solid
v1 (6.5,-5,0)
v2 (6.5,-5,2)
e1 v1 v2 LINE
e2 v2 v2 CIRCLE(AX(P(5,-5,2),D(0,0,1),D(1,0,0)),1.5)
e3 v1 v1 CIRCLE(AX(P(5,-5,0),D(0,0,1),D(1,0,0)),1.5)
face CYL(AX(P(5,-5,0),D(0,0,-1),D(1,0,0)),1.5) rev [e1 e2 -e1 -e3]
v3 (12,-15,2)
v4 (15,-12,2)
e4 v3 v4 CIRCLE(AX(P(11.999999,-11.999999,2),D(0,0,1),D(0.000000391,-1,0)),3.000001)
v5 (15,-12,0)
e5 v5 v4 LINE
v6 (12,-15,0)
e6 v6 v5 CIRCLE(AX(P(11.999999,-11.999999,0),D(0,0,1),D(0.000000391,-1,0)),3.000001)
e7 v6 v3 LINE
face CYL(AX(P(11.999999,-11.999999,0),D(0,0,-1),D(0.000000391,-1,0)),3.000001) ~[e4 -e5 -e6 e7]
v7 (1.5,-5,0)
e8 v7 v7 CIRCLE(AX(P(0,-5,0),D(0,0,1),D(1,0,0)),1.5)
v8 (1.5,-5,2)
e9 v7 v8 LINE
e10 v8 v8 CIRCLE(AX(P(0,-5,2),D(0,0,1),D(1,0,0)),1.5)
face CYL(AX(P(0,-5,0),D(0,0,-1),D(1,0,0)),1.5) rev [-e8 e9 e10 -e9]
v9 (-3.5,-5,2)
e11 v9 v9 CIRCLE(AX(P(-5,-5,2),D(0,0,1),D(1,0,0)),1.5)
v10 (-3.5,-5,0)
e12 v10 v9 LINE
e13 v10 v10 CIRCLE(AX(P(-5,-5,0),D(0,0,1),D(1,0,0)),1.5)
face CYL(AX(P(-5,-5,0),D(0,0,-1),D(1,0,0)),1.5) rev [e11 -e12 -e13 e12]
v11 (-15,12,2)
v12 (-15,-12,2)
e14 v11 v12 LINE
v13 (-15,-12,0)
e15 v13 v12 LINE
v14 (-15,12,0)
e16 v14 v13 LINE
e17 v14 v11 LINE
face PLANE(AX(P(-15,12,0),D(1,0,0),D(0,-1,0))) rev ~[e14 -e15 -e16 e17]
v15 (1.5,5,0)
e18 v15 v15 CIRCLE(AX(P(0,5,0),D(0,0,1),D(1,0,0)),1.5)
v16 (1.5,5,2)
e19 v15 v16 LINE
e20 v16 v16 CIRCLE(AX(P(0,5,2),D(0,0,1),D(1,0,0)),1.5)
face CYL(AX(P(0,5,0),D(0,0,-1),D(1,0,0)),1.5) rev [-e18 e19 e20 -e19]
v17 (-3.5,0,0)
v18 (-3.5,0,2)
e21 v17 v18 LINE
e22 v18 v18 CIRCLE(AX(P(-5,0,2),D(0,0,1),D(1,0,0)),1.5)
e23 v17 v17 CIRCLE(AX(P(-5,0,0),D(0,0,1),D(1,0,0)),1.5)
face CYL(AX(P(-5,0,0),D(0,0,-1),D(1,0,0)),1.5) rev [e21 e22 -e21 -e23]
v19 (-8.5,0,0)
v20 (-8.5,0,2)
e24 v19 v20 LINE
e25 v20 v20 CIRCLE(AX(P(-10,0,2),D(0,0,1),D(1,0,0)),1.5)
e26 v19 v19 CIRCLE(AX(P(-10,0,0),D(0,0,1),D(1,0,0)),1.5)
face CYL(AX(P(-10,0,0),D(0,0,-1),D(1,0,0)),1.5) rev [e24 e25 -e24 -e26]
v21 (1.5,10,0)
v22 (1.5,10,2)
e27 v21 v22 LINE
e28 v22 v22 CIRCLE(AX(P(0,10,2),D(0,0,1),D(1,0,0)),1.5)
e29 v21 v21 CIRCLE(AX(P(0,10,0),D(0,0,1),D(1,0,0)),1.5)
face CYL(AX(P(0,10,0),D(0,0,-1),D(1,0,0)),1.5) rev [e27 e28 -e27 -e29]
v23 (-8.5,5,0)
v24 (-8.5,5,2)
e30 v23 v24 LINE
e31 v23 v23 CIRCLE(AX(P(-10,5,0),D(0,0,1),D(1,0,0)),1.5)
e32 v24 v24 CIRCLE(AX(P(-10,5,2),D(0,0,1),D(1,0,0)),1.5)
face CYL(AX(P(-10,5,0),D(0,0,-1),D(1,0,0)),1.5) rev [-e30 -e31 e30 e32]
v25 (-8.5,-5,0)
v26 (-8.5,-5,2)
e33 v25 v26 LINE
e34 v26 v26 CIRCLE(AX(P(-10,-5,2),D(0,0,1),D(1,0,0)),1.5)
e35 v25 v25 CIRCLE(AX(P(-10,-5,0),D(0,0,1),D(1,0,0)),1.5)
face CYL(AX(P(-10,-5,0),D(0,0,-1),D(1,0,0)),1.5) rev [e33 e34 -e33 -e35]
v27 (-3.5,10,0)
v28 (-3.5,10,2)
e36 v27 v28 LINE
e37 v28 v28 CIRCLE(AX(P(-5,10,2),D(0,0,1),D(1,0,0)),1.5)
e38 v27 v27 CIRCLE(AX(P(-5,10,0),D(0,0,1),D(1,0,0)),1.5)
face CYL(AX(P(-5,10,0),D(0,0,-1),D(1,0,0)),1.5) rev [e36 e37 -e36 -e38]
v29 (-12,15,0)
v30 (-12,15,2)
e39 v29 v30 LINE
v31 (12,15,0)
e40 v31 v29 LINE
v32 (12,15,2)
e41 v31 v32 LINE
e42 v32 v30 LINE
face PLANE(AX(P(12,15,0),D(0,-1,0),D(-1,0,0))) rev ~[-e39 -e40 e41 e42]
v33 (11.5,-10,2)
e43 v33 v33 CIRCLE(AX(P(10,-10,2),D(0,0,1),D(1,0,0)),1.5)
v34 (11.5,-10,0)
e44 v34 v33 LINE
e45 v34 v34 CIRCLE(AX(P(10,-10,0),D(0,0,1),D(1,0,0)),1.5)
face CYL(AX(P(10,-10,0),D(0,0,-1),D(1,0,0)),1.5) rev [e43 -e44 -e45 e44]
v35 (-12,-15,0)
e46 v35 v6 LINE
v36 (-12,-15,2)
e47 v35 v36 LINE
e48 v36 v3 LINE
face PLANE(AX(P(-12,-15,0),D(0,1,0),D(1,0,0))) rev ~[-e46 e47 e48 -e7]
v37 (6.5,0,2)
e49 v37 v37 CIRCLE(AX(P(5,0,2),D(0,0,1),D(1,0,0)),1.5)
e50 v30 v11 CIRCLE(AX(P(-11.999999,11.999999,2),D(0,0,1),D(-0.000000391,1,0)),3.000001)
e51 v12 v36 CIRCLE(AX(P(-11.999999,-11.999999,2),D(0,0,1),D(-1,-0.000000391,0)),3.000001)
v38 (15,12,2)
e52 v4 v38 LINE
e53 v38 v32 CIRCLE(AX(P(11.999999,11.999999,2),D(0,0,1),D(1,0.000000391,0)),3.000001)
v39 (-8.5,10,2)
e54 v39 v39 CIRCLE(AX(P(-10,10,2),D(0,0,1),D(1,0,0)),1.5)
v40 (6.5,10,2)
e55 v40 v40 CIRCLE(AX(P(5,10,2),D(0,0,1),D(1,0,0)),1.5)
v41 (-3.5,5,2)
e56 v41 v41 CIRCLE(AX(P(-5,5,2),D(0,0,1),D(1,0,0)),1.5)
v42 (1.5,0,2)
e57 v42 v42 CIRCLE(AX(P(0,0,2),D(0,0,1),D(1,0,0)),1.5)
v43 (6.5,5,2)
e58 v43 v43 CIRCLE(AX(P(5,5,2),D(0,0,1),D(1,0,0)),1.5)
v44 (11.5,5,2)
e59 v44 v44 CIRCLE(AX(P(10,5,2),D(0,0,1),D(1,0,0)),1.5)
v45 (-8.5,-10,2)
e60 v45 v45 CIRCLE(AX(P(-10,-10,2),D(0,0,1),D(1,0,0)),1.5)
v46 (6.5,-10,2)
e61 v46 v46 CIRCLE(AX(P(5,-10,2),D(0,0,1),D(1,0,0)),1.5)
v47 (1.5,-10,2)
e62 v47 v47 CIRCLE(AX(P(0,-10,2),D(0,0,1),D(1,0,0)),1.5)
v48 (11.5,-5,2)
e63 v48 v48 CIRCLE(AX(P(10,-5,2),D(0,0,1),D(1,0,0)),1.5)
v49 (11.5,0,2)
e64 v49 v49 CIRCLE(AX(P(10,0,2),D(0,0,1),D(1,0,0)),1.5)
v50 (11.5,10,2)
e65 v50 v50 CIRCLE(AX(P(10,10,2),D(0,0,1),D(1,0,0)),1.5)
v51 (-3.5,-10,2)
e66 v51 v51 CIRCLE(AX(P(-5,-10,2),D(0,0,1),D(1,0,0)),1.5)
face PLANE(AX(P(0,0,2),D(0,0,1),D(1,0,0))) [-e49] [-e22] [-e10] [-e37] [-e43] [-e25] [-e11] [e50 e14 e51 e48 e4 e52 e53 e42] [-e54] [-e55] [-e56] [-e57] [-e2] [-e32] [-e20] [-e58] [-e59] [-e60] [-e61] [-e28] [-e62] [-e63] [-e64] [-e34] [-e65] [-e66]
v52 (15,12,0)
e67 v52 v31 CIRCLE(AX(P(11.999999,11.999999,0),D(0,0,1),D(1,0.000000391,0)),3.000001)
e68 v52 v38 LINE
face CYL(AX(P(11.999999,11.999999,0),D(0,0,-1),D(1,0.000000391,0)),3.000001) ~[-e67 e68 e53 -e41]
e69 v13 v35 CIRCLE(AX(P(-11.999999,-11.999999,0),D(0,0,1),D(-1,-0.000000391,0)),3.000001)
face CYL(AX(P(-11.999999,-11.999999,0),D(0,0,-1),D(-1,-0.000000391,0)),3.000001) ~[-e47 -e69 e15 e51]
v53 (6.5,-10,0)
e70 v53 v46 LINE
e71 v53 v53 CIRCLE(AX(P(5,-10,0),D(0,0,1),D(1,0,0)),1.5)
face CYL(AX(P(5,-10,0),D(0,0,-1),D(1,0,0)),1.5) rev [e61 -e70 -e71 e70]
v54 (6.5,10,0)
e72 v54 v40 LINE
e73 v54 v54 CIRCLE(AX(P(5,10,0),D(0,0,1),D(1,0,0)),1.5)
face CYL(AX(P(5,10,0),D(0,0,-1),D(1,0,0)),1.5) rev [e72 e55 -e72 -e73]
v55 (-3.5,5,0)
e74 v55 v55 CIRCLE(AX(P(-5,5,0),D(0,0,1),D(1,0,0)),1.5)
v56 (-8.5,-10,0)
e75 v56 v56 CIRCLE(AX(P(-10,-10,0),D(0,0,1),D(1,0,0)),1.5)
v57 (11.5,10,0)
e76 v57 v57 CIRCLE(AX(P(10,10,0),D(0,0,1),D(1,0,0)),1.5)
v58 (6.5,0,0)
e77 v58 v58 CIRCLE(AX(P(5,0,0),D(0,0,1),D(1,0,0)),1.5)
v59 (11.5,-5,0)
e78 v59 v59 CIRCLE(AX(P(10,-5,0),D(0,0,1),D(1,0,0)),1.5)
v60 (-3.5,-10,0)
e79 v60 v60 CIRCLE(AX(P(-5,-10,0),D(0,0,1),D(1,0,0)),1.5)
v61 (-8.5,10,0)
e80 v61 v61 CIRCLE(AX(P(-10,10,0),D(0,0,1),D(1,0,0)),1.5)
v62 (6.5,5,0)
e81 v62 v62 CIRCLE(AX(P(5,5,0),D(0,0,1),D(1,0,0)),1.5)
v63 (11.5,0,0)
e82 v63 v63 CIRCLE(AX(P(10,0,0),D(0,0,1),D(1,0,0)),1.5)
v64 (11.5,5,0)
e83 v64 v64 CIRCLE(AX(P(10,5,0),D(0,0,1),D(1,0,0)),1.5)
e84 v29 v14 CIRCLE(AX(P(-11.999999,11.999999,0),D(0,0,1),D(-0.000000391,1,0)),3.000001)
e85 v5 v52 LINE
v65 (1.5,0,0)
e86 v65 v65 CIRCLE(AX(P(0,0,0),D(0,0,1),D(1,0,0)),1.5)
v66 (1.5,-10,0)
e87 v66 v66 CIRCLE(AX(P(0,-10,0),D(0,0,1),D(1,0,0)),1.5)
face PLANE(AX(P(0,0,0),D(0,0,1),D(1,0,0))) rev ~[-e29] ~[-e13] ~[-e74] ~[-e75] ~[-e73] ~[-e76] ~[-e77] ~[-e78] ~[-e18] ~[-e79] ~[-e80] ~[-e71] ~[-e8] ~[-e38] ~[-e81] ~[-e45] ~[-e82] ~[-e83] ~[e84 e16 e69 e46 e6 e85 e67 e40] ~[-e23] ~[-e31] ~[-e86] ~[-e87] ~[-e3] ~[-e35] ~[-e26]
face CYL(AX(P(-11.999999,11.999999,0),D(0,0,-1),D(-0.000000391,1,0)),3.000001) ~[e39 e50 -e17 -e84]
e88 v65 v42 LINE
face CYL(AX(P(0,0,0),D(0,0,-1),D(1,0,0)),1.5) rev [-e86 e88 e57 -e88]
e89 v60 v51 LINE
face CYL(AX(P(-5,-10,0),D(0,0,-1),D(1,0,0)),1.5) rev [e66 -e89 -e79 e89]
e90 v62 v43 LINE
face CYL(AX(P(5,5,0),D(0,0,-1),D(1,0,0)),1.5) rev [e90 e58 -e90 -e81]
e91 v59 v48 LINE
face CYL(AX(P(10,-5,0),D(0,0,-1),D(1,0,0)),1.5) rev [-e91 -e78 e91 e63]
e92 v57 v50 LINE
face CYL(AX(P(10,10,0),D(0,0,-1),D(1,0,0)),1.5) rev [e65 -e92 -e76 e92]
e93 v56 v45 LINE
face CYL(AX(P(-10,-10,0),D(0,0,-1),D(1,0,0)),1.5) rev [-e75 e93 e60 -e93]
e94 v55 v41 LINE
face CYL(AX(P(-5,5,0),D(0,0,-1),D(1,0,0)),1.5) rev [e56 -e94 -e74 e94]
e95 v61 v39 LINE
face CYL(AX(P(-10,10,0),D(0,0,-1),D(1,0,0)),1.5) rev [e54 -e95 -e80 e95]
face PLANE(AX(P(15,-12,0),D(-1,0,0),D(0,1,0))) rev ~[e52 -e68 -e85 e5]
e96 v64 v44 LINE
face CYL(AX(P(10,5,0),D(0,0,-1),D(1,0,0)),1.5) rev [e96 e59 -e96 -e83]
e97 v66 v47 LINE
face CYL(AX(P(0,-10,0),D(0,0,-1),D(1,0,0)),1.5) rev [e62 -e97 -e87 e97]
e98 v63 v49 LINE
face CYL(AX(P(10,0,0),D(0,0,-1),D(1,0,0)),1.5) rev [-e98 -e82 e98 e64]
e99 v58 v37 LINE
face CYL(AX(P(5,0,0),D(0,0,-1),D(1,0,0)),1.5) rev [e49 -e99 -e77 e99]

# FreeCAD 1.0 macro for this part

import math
import FreeCAD as App
import Part
import Sketcher

V = App.Vector
Q = App.Units.Quantity

doc = App.newDocument("Part")
params = doc.addObject("Spreadsheet::Sheet", "Params")
for row, (alias, value) in enumerate([
    ("sketch1_diameter", "3 mm"),
    ("sketch1_radius", "3.000001 mm"),
    ("sketch1_width", "24 mm"),
    ("pad1_length", "2 mm"),
], start=1):
    params.set(f"A{row}", alias)
    params.set(f"B{row}", "=" + value)
    params.setAlias(f"B{row}", alias)

body = doc.addObject("PartDesign::Body", "Body")

sketch1 = body.newObject("Sketcher::SketchObject", "Sketch")
sketch1.AttachmentSupport = (doc.getObject("XY_Plane"), [""])
sketch1.MapMode = "FlatFace"
sketch1.addGeometry([
    Part.LineSegment(V(-12, -15, 0), V(12, -15, 0)),
    Part.ArcOfCircle(Part.Circle(V(12, -12, 0), V(0, 0, 1), 3), math.radians(-90), math.radians(0)),
    Part.LineSegment(V(15, -12, 0), V(15, 12, 0)),
    Part.ArcOfCircle(Part.Circle(V(12, 12, 0), V(0, 0, 1), 3), math.radians(0), math.radians(90)),
    Part.LineSegment(V(12, 15, 0), V(-12, 15, 0)),
    Part.ArcOfCircle(Part.Circle(V(-12, 12, 0), V(0, 0, 1), 3), math.radians(90), math.radians(180)),
    Part.LineSegment(V(-15, 12, 0), V(-15, -12, 0)),
    Part.ArcOfCircle(Part.Circle(V(-12, -12, 0), V(0, 0, 1), 3), math.radians(-180), math.radians(-90)),
    Part.Circle(V(-10, -10, 0), V(0, 0, 1), 1.5),
    Part.Circle(V(-5, -10, 0), V(0, 0, 1), 1.5),
    Part.Circle(V(-10, -5, 0), V(0, 0, 1), 1.5),
    Part.Circle(V(-5, -5, 0), V(0, 0, 1), 1.5),
    Part.Circle(V(0, -10, 0), V(0, 0, 1), 1.5),
    Part.Circle(V(5, -10, 0), V(0, 0, 1), 1.5),
    Part.Circle(V(10, -10, 0), V(0, 0, 1), 1.5),
    Part.Circle(V(0, -5, 0), V(0, 0, 1), 1.5),
    Part.Circle(V(5, -5, 0), V(0, 0, 1), 1.5),
    Part.Circle(V(10, -5, 0), V(0, 0, 1), 1.5),
    Part.Circle(V(-10, 0, 0), V(0, 0, 1), 1.5),
    Part.Circle(V(-10, 5, 0), V(0, 0, 1), 1.5),
    Part.Circle(V(-5, 0, 0), V(0, 0, 1), 1.5),
    Part.Circle(V(-5, 5, 0), V(0, 0, 1), 1.5),
    Part.Circle(V(-10, 10, 0), V(0, 0, 1), 1.5),
    Part.Circle(V(-5, 10, 0), V(0, 0, 1), 1.5),
    Part.Circle(V(0, 0, 0), V(0, 0, 1), 1.5),
    Part.Circle(V(5, 0, 0), V(0, 0, 1), 1.5),
    Part.Circle(V(0, 5, 0), V(0, 0, 1), 1.5),
    Part.Circle(V(5, 5, 0), V(0, 0, 1), 1.5),
    Part.Circle(V(10, 0, 0), V(0, 0, 1), 1.5),
    Part.Circle(V(10, 5, 0), V(0, 0, 1), 1.5),
    Part.Circle(V(0, 10, 0), V(0, 0, 1), 1.5),
    Part.Circle(V(5, 10, 0), V(0, 0, 1), 1.5),
    Part.Circle(V(10, 10, 0), V(0, 0, 1), 1.5),
], False)
sketch1.addConstraint([
    Sketcher.Constraint("Tangent", 0, 2, 1, 1),
    Sketcher.Constraint("Tangent", 1, 2, 2, 1),
    Sketcher.Constraint("Tangent", 2, 2, 3, 1),
    Sketcher.Constraint("Tangent", 3, 2, 4, 1),
    Sketcher.Constraint("Tangent", 4, 2, 5, 1),
    Sketcher.Constraint("Tangent", 5, 2, 6, 1),
    Sketcher.Constraint("Tangent", 6, 2, 7, 1),
    Sketcher.Constraint("Tangent", 7, 2, 0, 1),
    Sketcher.Constraint("Horizontal", 0),
    Sketcher.Constraint("Vertical", 2),
    Sketcher.Constraint("Horizontal", 4),
    Sketcher.Constraint("Vertical", 6),
    Sketcher.Constraint("Coincident", 24, 3, -1, 1),
    Sketcher.Constraint("Equal", 1, 3),
    Sketcher.Constraint("Equal", 3, 5),
    Sketcher.Constraint("Equal", 5, 7),
    Sketcher.Constraint("Equal", 8, 9),
    Sketcher.Constraint("Equal", 9, 10),
    Sketcher.Constraint("Equal", 10, 11),
    Sketcher.Constraint("Equal", 11, 12),
    Sketcher.Constraint("Equal", 12, 13),
    Sketcher.Constraint("Equal", 13, 14),
    Sketcher.Constraint("Equal", 14, 15),
    Sketcher.Constraint("Equal", 15, 16),
    Sketcher.Constraint("Equal", 16, 17),
    Sketcher.Constraint("Equal", 17, 18),
    Sketcher.Constraint("Equal", 18, 19),
    Sketcher.Constraint("Equal", 19, 20),
    Sketcher.Constraint("Equal", 20, 21),
    Sketcher.Constraint("Equal", 21, 22),
    Sketcher.Constraint("Equal", 22, 23),
    Sketcher.Constraint("Equal", 23, 24),
    Sketcher.Constraint("Equal", 24, 25),
    Sketcher.Constraint("Equal", 25, 26),
    Sketcher.Constraint("Equal", 26, 27),
    Sketcher.Constraint("Equal", 27, 28),
    Sketcher.Constraint("Equal", 28, 29),
    Sketcher.Constraint("Equal", 29, 30),
    Sketcher.Constraint("Equal", 30, 31),
    Sketcher.Constraint("Equal", 31, 32),
    Sketcher.Constraint("Symmetric", 1, 3, 5, 3, -1, 1),
    Sketcher.Constraint("Symmetric", 17, 3, 19, 3, -1, 1),
    Sketcher.Constraint("Symmetric", 16, 3, 21, 3, -1, 1),
    Sketcher.Constraint("Symmetric", 14, 3, 22, 3, -1, 1),
    Sketcher.Constraint("Symmetric", 13, 3, 23, 3, -1, 1),
    Sketcher.Constraint("Symmetric", 20, 3, 25, 3, -1, 1),
    Sketcher.Constraint("Symmetric", 15, 3, 26, 3, -1, 1),
    Sketcher.Constraint("Symmetric", 11, 3, 27, 3, -1, 1),
    Sketcher.Constraint("Symmetric", 18, 3, 28, 3, -1, 1),
    Sketcher.Constraint("Symmetric", 10, 3, 29, 3, -1, 1),
    Sketcher.Constraint("Symmetric", 12, 3, 30, 3, -1, 1),
    Sketcher.Constraint("Symmetric", 9, 3, 31, 3, -1, 1),
    Sketcher.Constraint("Symmetric", 8, 3, 32, 3, -1, 1),
    Sketcher.Constraint("Symmetric", 9, 3, 13, 3, -2),
    Sketcher.Constraint("Symmetric", 8, 3, 14, 3, -2),
    Sketcher.Constraint("Symmetric", 11, 3, 16, 3, -2),
    Sketcher.Constraint("Symmetric", 10, 3, 17, 3, -2),
    Sketcher.Constraint("PointOnObject", 12, 3, -2),
    Sketcher.Constraint("PointOnObject", 15, 3, -2),
    Sketcher.Constraint("PointOnObject", 18, 3, -1),
    Sketcher.Constraint("PointOnObject", 20, 3, -1),
    Sketcher.Constraint("Horizontal", 8, 3, 9, 3),
    Sketcher.Constraint("Horizontal", 10, 3, 11, 3),
    Sketcher.Constraint("Horizontal", 9, 3, 12, 3),
    Sketcher.Constraint("Horizontal", 11, 3, 15, 3),
    Sketcher.Constraint("Vertical", 8, 3, 10, 3),
    Sketcher.Constraint("Vertical", 9, 3, 11, 3),
    Sketcher.Constraint("Vertical", 10, 3, 18, 3),
    Sketcher.Constraint("Vertical", 11, 3, 20, 3),
    Sketcher.Constraint("Equal", 4, 2),
    Sketcher.Constraint("Diameter", 8, Q("3 mm")),
    Sketcher.Constraint("Radius", 1, Q("3.000001 mm")),
    Sketcher.Constraint("DistanceX", 0, 1, 0, 2, Q("24 mm")),
    Sketcher.Constraint("DistanceX", 8, 3, -1, 1, Q("10 mm")),
    Sketcher.Constraint("DistanceY", 8, 3, -1, 1, Q("10 mm")),
    Sketcher.Constraint("DistanceX", 9, 3, -1, 1, Q("5 mm")),
    Sketcher.Constraint("DistanceY", 10, 3, -1, 1, Q("5 mm")),
])
sketch1.setExpression("Constraints[70]", "Params.sketch1_diameter")
sketch1.setExpression("Constraints[71]", "Params.sketch1_radius")
sketch1.setExpression("Constraints[72]", "Params.sketch1_width")
pad1 = body.newObject("PartDesign::Pad", "Pad")
pad1.Profile = sketch1
pad1.setExpression("Length", "Params.pad1_length")

doc.recompute()
